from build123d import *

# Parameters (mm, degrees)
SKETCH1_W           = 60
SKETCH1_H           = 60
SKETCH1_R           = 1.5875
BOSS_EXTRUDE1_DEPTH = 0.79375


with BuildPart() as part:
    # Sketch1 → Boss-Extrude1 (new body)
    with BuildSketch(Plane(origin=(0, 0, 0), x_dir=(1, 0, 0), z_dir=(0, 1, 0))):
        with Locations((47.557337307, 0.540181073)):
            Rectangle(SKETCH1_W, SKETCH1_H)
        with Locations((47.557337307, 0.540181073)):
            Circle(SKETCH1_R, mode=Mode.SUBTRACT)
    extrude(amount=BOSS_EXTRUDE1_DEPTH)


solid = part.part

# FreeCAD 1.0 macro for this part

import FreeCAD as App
import Part
import Sketcher
from FreeCAD import Vector
Q = App.Units.Quantity

doc = App.newDocument("Part")
params = doc.addObject("Spreadsheet::Sheet", "Params")
for row, (alias, value) in enumerate([
    ("sketch1_diameter", "0.125 in"),
    ("pad1_length", "0.03125 in"),
], start=1):
    params.set(f"A{row}", alias)
    params.set(f"B{row}", "=" + value)
    params.setAlias(f"B{row}", alias)

body = doc.addObject("PartDesign::Body", "Body")

# Sketch on XZ plane
sketch1 = doc.addObject("Sketcher::SketchObject", "Sketch")
body.addObject(sketch1)
sketch1.AttachmentSupport = (doc.XZ_Plane, [""])
sketch1.MapMode = "FlatFace"
sketch1.addGeometry(Part.LineSegment(Vector(17.557337, -30.540181, 0), Vector(17.557337, 29.459819, 0)), False)
sketch1.addGeometry(Part.LineSegment(Vector(17.557337, 29.459819, 0), Vector(77.557337, 29.459819, 0)), False)
sketch1.addGeometry(Part.LineSegment(Vector(77.557337, 29.459819, 0), Vector(77.557337, -30.540181, 0)), False)
sketch1.addGeometry(Part.LineSegment(Vector(77.557337, -30.540181, 0), Vector(17.557337, -30.540181, 0)), False)
sketch1.addGeometry(Part.Circle(Vector(47.557337, -0.540181, 0), Vector(0, 0, 1), 1.5875), False)
sketch1.addConstraint(Sketcher.Constraint("Coincident", 0, 2, 1, 1))
sketch1.addConstraint(Sketcher.Constraint("Coincident", 1, 2, 2, 1))
sketch1.addConstraint(Sketcher.Constraint("Coincident", 2, 2, 3, 1))
sketch1.addConstraint(Sketcher.Constraint("Coincident", 3, 2, 0, 1))
sketch1.addConstraint(Sketcher.Constraint("Vertical", 0))
sketch1.addConstraint(Sketcher.Constraint("Horizontal", 1))
sketch1.addConstraint(Sketcher.Constraint("Vertical", 2))
sketch1.addConstraint(Sketcher.Constraint("Horizontal", 3))
sketch1.addConstraint(Sketcher.Constraint("Equal", 3, 0))
sketch1.addConstraint(Sketcher.Constraint("Diameter", 4, Q("0.125 in")))
sketch1.addConstraint(Sketcher.Constraint("DistanceX", 1, 1, 1, 2, Q("60 mm")))
sketch1.addConstraint(Sketcher.Constraint("DistanceX", 0, 2, 4, 3, Q("30 mm")))
sketch1.addConstraint(Sketcher.Constraint("DistanceY", 4, 3, 0, 2, Q("30 mm")))
sketch1.addConstraint(Sketcher.Constraint("DistanceY", 4, 3, -1, 1, Q("0.540181 mm")))
sketch1.addConstraint(Sketcher.Constraint("DistanceX", -1, 1, 4, 3, Q("47.557337 mm")))
sketch1.setExpression("Constraints[9]", "Params.sketch1_diameter")
pad1 = doc.addObject("PartDesign::Pad", "Pad")
body.addObject(pad1)
pad1.Profile = sketch1
pad1.setExpression("Length", "Params.pad1_length")
pad1.Reversed = True

doc.recompute()
